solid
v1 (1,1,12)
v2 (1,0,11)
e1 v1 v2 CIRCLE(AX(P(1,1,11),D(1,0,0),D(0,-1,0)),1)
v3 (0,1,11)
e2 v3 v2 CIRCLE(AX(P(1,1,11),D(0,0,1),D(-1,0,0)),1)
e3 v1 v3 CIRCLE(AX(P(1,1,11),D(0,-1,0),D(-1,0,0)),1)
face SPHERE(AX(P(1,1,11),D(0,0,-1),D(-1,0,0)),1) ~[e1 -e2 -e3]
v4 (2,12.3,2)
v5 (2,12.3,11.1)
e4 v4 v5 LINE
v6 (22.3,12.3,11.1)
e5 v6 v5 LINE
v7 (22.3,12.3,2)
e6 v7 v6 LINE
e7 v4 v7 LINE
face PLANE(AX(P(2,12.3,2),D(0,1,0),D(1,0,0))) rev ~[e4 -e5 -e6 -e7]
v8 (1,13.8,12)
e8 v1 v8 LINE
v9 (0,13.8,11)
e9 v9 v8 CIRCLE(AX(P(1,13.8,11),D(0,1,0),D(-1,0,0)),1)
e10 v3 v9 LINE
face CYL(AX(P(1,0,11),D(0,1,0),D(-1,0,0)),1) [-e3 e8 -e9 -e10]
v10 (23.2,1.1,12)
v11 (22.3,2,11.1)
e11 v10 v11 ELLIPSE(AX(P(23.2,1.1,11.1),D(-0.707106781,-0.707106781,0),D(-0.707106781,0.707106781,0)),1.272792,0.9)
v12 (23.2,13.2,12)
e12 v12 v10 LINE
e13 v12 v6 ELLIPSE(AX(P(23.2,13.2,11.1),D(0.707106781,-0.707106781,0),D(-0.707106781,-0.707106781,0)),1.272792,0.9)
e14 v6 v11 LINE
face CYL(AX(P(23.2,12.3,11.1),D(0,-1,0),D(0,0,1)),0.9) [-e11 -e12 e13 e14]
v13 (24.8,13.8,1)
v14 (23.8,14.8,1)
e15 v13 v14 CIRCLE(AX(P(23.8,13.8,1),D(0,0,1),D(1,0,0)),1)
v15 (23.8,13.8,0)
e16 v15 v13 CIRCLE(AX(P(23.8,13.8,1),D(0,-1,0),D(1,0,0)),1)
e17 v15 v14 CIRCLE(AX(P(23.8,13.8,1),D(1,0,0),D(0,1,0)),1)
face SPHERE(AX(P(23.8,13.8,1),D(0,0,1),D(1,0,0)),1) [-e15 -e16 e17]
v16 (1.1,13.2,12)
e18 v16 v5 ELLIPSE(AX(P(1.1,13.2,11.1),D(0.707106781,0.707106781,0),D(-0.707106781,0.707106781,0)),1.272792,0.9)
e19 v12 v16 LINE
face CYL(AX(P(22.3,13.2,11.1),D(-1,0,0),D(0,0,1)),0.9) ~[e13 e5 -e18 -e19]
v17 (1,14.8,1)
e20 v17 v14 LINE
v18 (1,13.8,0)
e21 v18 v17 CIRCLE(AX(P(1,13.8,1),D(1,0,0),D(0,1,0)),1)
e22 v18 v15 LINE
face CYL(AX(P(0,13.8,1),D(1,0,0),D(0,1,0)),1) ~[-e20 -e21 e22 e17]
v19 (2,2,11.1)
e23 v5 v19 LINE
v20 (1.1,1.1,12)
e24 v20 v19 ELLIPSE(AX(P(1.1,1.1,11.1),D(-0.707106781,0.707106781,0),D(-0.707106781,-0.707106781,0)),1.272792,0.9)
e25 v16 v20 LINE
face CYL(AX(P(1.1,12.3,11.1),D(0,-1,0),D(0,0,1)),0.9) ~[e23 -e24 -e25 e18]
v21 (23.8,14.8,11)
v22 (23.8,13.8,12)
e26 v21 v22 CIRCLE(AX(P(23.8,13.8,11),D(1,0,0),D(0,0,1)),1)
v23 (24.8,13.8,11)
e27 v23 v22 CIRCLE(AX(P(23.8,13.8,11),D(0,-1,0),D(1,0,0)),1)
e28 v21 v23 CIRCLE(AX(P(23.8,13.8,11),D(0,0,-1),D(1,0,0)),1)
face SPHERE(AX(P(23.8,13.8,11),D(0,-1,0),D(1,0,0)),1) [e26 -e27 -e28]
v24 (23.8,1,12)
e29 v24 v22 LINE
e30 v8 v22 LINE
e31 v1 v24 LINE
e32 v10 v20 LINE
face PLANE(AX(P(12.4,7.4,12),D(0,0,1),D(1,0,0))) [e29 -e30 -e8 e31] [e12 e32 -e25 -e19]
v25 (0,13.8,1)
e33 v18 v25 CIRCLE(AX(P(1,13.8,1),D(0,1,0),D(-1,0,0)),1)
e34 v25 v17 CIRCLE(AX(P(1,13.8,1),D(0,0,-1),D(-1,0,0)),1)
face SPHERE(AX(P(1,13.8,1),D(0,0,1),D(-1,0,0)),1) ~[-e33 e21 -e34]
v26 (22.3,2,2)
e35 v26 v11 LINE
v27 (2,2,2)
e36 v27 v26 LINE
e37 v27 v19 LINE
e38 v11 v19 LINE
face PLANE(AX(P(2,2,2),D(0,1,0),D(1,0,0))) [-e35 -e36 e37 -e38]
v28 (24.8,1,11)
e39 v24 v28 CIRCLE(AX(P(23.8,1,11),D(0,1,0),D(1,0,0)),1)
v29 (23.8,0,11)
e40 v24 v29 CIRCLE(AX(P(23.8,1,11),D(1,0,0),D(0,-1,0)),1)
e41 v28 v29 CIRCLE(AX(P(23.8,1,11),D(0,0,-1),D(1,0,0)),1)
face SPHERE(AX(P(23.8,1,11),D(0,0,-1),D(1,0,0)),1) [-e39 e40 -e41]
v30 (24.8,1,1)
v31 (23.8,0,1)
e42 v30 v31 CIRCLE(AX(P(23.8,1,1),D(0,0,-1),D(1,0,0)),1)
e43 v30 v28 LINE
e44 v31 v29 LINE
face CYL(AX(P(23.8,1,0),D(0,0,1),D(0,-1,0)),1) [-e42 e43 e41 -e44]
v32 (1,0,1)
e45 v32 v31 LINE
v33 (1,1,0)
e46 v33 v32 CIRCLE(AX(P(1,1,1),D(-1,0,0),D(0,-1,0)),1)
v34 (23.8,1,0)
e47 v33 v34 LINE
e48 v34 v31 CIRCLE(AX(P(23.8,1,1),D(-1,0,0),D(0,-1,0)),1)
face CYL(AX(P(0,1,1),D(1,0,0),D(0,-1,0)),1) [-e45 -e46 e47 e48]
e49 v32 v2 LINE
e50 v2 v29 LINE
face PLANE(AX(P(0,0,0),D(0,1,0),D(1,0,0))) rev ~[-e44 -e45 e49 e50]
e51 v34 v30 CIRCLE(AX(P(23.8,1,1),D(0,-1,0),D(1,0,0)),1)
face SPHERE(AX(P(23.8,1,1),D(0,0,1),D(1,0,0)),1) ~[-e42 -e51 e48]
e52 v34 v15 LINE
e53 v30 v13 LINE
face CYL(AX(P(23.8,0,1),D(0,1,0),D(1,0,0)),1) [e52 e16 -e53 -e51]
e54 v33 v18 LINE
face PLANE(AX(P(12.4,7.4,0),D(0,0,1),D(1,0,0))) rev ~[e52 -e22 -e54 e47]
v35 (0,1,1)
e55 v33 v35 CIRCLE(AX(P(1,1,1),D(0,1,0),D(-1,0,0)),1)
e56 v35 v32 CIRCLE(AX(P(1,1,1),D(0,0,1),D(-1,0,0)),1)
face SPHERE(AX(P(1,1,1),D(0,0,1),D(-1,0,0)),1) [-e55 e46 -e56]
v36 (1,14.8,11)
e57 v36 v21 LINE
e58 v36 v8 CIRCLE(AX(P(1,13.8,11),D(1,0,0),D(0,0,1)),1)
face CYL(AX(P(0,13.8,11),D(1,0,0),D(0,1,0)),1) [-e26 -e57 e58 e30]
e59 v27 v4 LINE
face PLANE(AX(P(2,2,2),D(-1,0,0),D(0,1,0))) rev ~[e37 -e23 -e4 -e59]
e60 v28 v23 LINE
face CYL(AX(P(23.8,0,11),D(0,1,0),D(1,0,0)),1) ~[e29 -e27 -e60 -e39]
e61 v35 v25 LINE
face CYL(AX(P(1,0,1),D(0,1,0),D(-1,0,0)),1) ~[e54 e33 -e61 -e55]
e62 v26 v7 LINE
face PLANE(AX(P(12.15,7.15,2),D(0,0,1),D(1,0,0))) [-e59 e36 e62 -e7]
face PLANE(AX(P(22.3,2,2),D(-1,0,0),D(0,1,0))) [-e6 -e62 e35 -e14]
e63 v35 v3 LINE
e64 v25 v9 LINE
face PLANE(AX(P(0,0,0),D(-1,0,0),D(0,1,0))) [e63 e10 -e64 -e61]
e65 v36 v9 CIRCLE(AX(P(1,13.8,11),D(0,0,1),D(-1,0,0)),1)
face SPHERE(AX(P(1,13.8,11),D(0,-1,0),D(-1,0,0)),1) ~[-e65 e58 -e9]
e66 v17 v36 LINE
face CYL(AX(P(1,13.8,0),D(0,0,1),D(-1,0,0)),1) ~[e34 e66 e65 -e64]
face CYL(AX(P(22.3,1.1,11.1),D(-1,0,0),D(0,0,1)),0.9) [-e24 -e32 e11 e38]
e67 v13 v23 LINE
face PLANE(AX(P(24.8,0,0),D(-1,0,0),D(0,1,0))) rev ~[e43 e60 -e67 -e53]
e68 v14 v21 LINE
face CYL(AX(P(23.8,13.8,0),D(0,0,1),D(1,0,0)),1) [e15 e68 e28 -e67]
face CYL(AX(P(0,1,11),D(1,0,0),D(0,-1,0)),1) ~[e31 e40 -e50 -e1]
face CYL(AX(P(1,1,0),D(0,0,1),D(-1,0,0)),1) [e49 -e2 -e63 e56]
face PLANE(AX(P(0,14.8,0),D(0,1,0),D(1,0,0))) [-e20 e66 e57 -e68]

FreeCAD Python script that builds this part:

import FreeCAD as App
import Part
import Sketcher

V = App.Vector


def edges_at(feature, points):
    """Names of the edges that pass closest to the given points."""
    edges = feature.Shape.Edges
    near = lambda p: min(range(len(edges)), key=lambda i: edges[i].distToShape(Part.Vertex(*p))[0])
    return sorted({f"Edge{near(p) + 1}" for p in points})

doc = App.newDocument("Part")
body = doc.addObject("PartDesign::Body", "Body")

sketch1 = body.newObject("Sketcher::SketchObject", "Sketch")
sketch1.AttachmentSupport = (doc.getObject("XY_Plane"), [""])
sketch1.MapMode = "FlatFace"
sketch1.addGeometry(Part.LineSegment(V(0, 10.3, 0), V(0, 0, 0)), False)
sketch1.addGeometry(Part.LineSegment(V(0, 0, 0), V(20.3, 0, 0)), False)
sketch1.addGeometry(Part.LineSegment(V(20.3, 0, 0), V(20.3, 10.3, 0)), False)
sketch1.addGeometry(Part.LineSegment(V(20.3, 10.3, 0), V(0, 10.3, 0)), False)
sketch1.addConstraint(Sketcher.Constraint("Coincident", 0, 2, 1, 1))
sketch1.addConstraint(Sketcher.Constraint("Coincident", 1, 2, 2, 1))
sketch1.addConstraint(Sketcher.Constraint("Coincident", 2, 2, 3, 1))
sketch1.addConstraint(Sketcher.Constraint("Coincident", 3, 2, 0, 1))
sketch1.addConstraint(Sketcher.Constraint("Vertical", 0))
sketch1.addConstraint(Sketcher.Constraint("Horizontal", 1))
sketch1.addConstraint(Sketcher.Constraint("Vertical", 2))
sketch1.addConstraint(Sketcher.Constraint("Horizontal", 3))
sketch1.addConstraint(Sketcher.Constraint("Coincident", 0, 2, -1, 1))
sketch1.addConstraint(Sketcher.Constraint("DistanceX", 1, 1, 1, 2, 20.3))
sketch1.addConstraint(Sketcher.Constraint("DistanceY", 0, 2, 0, 1, 10.3))
pad1 = body.newObject("PartDesign::Pad", "Pad")
pad1.Profile = sketch1
pad1.Length = 300
body2 = doc.addObject("PartDesign::Body", "Body001")
doc.recompute()

body.Placement = App.Placement(V(2, 2, 2), App.Rotation(V(0, 0, 1), 0))
boolean = body2.newObject("PartDesign::Boolean", "Boolean")
boolean.Type = "Fuse"
boolean.addObjects([body])
body3 = doc.addObject("PartDesign::Body", "Body002")

sketch2 = body3.newObject("Sketcher::SketchObject", "Sketch001")
sketch2.AttachmentSupport = (doc.getObject("XY_Plane002"), [""])
sketch2.MapMode = "FlatFace"
sketch2.addGeometry(Part.LineSegment(V(0, 14.8, 0), V(0, 0, 0)), False)
sketch2.addGeometry(Part.LineSegment(V(0, 0, 0), V(24.8, 0, 0)), False)
sketch2.addGeometry(Part.LineSegment(V(24.8, 0, 0), V(24.8, 14.8, 0)), False)
sketch2.addGeometry(Part.LineSegment(V(24.8, 14.8, 0), V(0, 14.8, 0)), False)
sketch2.addConstraint(Sketcher.Constraint("Coincident", 0, 2, 1, 1))
sketch2.addConstraint(Sketcher.Constraint("Coincident", 1, 2, 2, 1))
sketch2.addConstraint(Sketcher.Constraint("Coincident", 2, 2, 3, 1))
sketch2.addConstraint(Sketcher.Constraint("Coincident", 3, 2, 0, 1))
sketch2.addConstraint(Sketcher.Constraint("Vertical", 0))
sketch2.addConstraint(Sketcher.Constraint("Horizontal", 1))
sketch2.addConstraint(Sketcher.Constraint("Vertical", 2))
sketch2.addConstraint(Sketcher.Constraint("Horizontal", 3))
sketch2.addConstraint(Sketcher.Constraint("Coincident", 0, 2, -1, 1))
sketch2.addConstraint(Sketcher.Constraint("DistanceX", 1, 1, 1, 2, 24.8))
sketch2.addConstraint(Sketcher.Constraint("DistanceY", 0, 2, 0, 1, 14.8))
pad2 = body3.newObject("PartDesign::Pad", "Pad001")
pad2.Profile = sketch2
pad2.Length = 12
doc.recompute()

fillet = body3.newObject("PartDesign::Fillet", "Fillet")
fillet.Base = (pad2, ["Edge1"])
fillet.UseAllEdges = True
fillet.Radius = 1
doc.recompute()

boolean2 = body3.newObject("PartDesign::Boolean", "Boolean001")
boolean2.Type = "Cut"
boolean2.addObjects([body2])
doc.recompute()

fillet2 = body3.newObject("PartDesign::Fillet", "Fillet001")
fillet2.Base = (boolean2, edges_at(boolean2, [
    (12.15, 2, 12),
    (22.3, 7.15, 12),
    (12.15, 12.3, 12),
    (2, 7.15, 12),
]))
fillet2.Radius = 0.9

doc.recompute()
